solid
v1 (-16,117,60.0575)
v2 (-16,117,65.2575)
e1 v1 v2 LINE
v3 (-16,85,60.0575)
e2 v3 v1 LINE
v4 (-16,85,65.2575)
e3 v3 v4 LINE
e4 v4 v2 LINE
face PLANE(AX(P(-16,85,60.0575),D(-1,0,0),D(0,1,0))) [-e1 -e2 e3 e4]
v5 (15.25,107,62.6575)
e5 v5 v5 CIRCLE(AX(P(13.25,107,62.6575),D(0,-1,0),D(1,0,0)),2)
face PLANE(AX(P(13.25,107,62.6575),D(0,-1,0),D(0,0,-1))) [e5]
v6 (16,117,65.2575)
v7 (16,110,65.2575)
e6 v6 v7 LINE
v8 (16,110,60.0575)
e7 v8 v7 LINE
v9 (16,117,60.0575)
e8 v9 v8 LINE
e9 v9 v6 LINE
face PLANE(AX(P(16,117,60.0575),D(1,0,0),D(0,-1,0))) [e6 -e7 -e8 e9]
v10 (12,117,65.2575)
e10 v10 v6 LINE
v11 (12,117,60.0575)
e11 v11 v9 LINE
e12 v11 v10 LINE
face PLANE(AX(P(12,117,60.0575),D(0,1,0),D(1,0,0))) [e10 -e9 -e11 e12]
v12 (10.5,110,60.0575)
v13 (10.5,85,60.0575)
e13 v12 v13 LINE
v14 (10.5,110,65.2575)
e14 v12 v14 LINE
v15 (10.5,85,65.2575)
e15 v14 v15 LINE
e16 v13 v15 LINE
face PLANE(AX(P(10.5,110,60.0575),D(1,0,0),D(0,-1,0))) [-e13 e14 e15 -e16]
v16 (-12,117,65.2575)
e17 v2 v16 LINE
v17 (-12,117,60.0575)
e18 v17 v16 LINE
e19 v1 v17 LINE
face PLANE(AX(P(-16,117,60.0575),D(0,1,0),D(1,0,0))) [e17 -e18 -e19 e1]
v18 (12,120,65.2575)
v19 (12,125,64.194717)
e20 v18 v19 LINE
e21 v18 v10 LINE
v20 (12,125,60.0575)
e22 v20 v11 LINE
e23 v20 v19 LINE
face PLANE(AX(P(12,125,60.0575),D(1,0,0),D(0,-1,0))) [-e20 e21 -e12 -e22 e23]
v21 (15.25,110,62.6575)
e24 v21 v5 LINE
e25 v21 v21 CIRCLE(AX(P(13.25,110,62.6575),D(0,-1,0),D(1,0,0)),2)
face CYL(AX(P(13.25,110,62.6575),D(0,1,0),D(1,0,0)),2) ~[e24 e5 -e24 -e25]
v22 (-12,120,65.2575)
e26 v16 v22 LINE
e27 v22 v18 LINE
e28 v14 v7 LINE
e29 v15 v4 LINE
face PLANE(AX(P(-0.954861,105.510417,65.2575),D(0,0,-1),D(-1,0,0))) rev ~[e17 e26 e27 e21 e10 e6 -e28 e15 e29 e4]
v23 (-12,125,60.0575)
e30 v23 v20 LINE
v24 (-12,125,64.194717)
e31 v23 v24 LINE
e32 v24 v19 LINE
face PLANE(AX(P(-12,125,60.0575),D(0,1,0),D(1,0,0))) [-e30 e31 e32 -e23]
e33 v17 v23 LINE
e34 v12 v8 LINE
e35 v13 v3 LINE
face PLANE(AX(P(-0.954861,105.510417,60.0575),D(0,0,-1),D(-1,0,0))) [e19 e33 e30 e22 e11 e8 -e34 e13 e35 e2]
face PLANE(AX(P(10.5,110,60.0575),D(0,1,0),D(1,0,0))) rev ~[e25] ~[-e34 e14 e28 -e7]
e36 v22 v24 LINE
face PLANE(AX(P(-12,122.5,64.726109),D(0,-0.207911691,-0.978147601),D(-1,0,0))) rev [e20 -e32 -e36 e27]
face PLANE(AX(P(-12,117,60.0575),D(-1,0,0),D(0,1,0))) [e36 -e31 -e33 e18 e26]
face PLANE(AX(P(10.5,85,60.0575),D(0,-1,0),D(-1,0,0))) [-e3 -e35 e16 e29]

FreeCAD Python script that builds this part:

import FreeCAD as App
import Part
import Sketcher
from FreeCAD import Vector


def edges_at(feature, points):
    """Names of the edges that pass closest to the given points."""
    edges = feature.Shape.Edges
    near = lambda p: min(range(len(edges)), key=lambda i: edges[i].distToShape(Part.Vertex(*p))[0])
    return sorted({f"Edge{near(p) + 1}" for p in points})

doc = App.newDocument("Part")
body = doc.addObject("PartDesign::Body", "Body")

# Sketch on XY plane
sketch1 = body.newObject("Sketcher::SketchObject", "Sketch")
sketch1.AttachmentSupport = (doc.getObject("XY_Plane"), [""])
sketch1.MapMode = "FlatFace"
sketch1.AttachmentOffset = App.Placement(Vector(0, 0, 60.0575), App.Rotation())
sketch1.addGeometry([
    Part.LineSegment(Vector(16, 117, 0), Vector(12, 117, 0)),  # 0
    Part.LineSegment(Vector(12, 117, 0), Vector(12, 125, 0)),  # 1
    Part.LineSegment(Vector(12, 125, 0), Vector(-12, 125, 0)),  # 2
    Part.LineSegment(Vector(-12, 125, 0), Vector(-12, 117, 0)),  # 3
    Part.LineSegment(Vector(-12, 117, 0), Vector(-16, 117, 0)),  # 4
    Part.LineSegment(Vector(-16, 117, 0), Vector(-16, 85, 0)),  # 5
    Part.LineSegment(Vector(-16, 85, 0), Vector(10.5, 85, 0)),  # 6
    Part.LineSegment(Vector(10.5, 85, 0), Vector(10.5, 110, 0)),  # 7
    Part.LineSegment(Vector(10.5, 110, 0), Vector(16, 110, 0)),  # 8
    Part.LineSegment(Vector(16, 110, 0), Vector(16, 117, 0)),  # 9
], False)
sketch1.addConstraint([
    Sketcher.Constraint("Coincident", 0, 2, 1, 1),
    Sketcher.Constraint("Coincident", 1, 2, 2, 1),
    Sketcher.Constraint("Coincident", 2, 2, 3, 1),
    Sketcher.Constraint("Coincident", 3, 2, 4, 1),
    Sketcher.Constraint("Coincident", 4, 2, 5, 1),
    Sketcher.Constraint("Coincident", 5, 2, 6, 1),
    Sketcher.Constraint("Coincident", 6, 2, 7, 1),
    Sketcher.Constraint("Coincident", 7, 2, 8, 1),
    Sketcher.Constraint("Coincident", 8, 2, 9, 1),
    Sketcher.Constraint("Coincident", 9, 2, 0, 1),
    Sketcher.Constraint("Horizontal", 0),
    Sketcher.Constraint("Vertical", 1),
    Sketcher.Constraint("Horizontal", 2),
    Sketcher.Constraint("Vertical", 3),
    Sketcher.Constraint("Horizontal", 4),
    Sketcher.Constraint("Vertical", 5),
    Sketcher.Constraint("Horizontal", 6),
    Sketcher.Constraint("Vertical", 7),
    Sketcher.Constraint("Horizontal", 8),
    Sketcher.Constraint("Vertical", 9),
    Sketcher.Constraint("Symmetric", 0, 2, 3, 2, -2),
    Sketcher.Constraint("Equal", 0, 4),
    Sketcher.Constraint("DistanceX", 0, 2, 0, 1, 4.0),
    Sketcher.Constraint("DistanceX", 2, 2, 2, 1, 24.0),
    Sketcher.Constraint("DistanceY", 1, 1, 1, 2, 8.0),
    Sketcher.Constraint("DistanceY", 5, 2, 5, 1, 32.0),
    Sketcher.Constraint("DistanceY", 7, 1, 7, 2, 25.0),
    Sketcher.Constraint("DistanceX", 6, 1, 6, 2, 26.5),
    Sketcher.Constraint("DistanceY", -1, 1, 0, 2, 117.0),
])
pad1 = body.newObject("PartDesign::Pad", "Pad")
pad1.Profile = sketch1
pad1.Length = 5.2

# Sketch on XZ plane
sketch2 = body.newObject("Sketcher::SketchObject", "Sketch001")
sketch2.AttachmentSupport = (doc.getObject("XZ_Plane"), [""])
sketch2.MapMode = "FlatFace"
sketch2.AttachmentOffset = App.Placement(Vector(0, 0, -110), App.Rotation())
sketch2.addGeometry(Part.Circle(Vector(13.2, 62.7, 0), Vector(0, 0, 1), 2), False)
sketch2.addConstraint([
    Sketcher.Constraint("Diameter", 0, 4.0),
    Sketcher.Constraint("DistanceX", -1, 1, 0, 3, 13.25),
    Sketcher.Constraint("DistanceY", -1, 1, 0, 3, 62.6575),
])
pad2 = body.newObject("PartDesign::Pad", "Pad001")
pad2.Profile = sketch2
pad2.Length = 3
doc.recompute()

chamfer = body.newObject("PartDesign::Chamfer", "Chamfer")
chamfer.Base = (pad2, edges_at(pad2, [(0, 125, 65.257)]))
chamfer.ChamferType = "Distance and Angle"
chamfer.Size = 5
chamfer.Angle = 12

doc.recompute()
